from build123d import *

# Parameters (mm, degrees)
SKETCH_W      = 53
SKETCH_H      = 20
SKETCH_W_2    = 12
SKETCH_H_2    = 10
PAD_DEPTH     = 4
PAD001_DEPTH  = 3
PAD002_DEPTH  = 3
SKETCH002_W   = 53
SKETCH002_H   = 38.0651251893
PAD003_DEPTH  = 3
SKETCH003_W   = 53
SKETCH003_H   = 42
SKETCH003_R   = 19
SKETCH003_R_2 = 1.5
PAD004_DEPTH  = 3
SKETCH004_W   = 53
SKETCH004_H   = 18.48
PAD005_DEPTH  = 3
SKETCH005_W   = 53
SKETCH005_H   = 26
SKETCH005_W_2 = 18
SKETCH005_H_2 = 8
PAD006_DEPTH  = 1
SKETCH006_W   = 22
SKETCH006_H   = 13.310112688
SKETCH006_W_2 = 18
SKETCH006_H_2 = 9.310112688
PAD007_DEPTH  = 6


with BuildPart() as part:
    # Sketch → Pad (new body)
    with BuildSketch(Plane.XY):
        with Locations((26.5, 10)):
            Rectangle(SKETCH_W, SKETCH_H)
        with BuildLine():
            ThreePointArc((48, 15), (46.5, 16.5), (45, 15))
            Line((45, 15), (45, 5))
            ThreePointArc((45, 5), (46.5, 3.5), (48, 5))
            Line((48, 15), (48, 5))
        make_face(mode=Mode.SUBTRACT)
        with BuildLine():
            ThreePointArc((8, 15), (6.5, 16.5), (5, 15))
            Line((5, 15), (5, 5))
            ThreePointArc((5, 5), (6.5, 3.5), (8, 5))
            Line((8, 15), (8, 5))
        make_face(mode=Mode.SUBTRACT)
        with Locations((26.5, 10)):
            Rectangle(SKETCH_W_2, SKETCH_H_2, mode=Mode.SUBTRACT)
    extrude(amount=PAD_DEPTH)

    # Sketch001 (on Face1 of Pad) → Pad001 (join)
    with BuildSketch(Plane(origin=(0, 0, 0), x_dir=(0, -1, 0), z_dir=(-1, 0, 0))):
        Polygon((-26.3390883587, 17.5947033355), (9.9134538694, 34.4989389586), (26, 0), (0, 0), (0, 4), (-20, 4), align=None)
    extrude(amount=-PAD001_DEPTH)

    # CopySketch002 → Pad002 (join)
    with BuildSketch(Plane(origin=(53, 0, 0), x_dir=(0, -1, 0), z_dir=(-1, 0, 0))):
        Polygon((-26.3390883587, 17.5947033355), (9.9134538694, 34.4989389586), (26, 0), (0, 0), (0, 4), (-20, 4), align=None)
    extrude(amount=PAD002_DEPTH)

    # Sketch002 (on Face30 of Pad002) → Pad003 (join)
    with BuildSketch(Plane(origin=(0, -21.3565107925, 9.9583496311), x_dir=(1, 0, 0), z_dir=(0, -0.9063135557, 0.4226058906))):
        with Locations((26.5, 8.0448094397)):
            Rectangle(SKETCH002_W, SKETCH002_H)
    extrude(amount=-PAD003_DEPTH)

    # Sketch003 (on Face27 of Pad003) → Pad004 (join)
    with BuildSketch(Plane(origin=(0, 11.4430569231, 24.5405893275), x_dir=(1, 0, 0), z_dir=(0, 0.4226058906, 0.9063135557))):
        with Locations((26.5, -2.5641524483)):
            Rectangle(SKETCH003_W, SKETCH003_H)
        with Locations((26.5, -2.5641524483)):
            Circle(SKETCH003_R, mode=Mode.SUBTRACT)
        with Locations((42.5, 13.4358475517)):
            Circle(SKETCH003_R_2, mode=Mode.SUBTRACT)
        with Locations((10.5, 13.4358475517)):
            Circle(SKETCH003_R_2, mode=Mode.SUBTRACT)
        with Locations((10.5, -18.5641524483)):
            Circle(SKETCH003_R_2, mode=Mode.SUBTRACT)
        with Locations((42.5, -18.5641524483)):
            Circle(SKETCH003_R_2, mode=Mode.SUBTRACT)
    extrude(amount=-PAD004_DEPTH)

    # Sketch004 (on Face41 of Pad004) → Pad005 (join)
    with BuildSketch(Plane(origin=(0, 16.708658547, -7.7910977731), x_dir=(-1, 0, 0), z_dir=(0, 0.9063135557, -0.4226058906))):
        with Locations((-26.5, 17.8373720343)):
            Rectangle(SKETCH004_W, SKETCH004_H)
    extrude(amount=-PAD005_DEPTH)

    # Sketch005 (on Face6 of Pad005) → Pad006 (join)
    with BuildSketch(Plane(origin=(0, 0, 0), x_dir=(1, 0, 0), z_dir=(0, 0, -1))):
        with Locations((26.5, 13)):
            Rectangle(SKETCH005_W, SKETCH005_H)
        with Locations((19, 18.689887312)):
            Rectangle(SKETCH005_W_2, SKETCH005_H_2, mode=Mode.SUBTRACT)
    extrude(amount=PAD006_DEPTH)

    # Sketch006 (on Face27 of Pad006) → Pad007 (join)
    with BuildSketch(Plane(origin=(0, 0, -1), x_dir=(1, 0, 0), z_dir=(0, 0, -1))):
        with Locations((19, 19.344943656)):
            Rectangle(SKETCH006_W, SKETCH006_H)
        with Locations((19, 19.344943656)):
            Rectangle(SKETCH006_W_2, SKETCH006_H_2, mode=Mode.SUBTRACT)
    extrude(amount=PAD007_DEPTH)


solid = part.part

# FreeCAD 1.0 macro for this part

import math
import FreeCAD as App
import Part
import Sketcher
from FreeCAD import Vector
Q = App.Units.Quantity

doc = App.newDocument("Part")
body = doc.addObject("PartDesign::Body", "Body")

sketch1 = doc.addObject("Sketcher::SketchObject", "Sketch")
body.addObject(sketch1)
sketch1.AttachmentSupport = (doc.XY_Plane, [""])
sketch1.MapMode = "FlatFace"
sketch1.addGeometry(Part.LineSegment(Vector(0, 20, 0), Vector(0, 0, 0)), False)
sketch1.addGeometry(Part.LineSegment(Vector(0, 0, 0), Vector(53, 0, 0)), False)
sketch1.addGeometry(Part.LineSegment(Vector(53, 0, 0), Vector(53, 20, 0)), False)
sketch1.addGeometry(Part.LineSegment(Vector(53, 20, 0), Vector(0, 20, 0)), False)
sketch1.addGeometry(Part.ArcOfCircle(Part.Circle(Vector(6.5, 15, 0), Vector(0, 0, 1), 1.5), math.radians(0), math.radians(180)), False)
sketch1.addGeometry(Part.LineSegment(Vector(8, 15, 0), Vector(8, 5, 0)), False)
sketch1.addGeometry(Part.ArcOfCircle(Part.Circle(Vector(6.5, 5, 0), Vector(0, 0, 1), 1.5), math.radians(180), math.radians(360)), False)
sketch1.addGeometry(Part.LineSegment(Vector(5, 5, 0), Vector(5, 15, 0)), False)
sketch1.addGeometry(Part.LineSegment(Vector(32.5, 5, 0), Vector(20.5, 5, 0)), False)
sketch1.addGeometry(Part.LineSegment(Vector(20.5, 5, 0), Vector(20.5, 15, 0)), False)
sketch1.addGeometry(Part.LineSegment(Vector(20.5, 15, 0), Vector(32.5, 15, 0)), False)
sketch1.addGeometry(Part.LineSegment(Vector(32.5, 15, 0), Vector(32.5, 5, 0)), False)
sketch1.addGeometry(Part.ArcOfCircle(Part.Circle(Vector(46.5, 15, 0), Vector(0, 0, 1), 1.5), math.radians(0), math.radians(180)), False)
sketch1.addGeometry(Part.LineSegment(Vector(48, 15, 0), Vector(48, 5, 0)), False)
sketch1.addGeometry(Part.ArcOfCircle(Part.Circle(Vector(46.5, 5, 0), Vector(0, 0, 1), 1.5), math.radians(180), math.radians(360)), False)
sketch1.addGeometry(Part.LineSegment(Vector(45, 5, 0), Vector(45, 15, 0)), False)
sketch1.addConstraint(Sketcher.Constraint("Coincident", 0, 2, 1, 1))
sketch1.addConstraint(Sketcher.Constraint("Coincident", 1, 2, 2, 1))
sketch1.addConstraint(Sketcher.Constraint("Coincident", 2, 2, 3, 1))
sketch1.addConstraint(Sketcher.Constraint("Coincident", 3, 2, 0, 1))
sketch1.addConstraint(Sketcher.Constraint("Tangent", 4, 1, 5, 1))
sketch1.addConstraint(Sketcher.Constraint("Tangent", 5, 2, 6, 2))
sketch1.addConstraint(Sketcher.Constraint("Tangent", 6, 1, 7, 1))
sketch1.addConstraint(Sketcher.Constraint("Tangent", 7, 2, 4, 2))
sketch1.addConstraint(Sketcher.Constraint("Coincident", 8, 2, 9, 1))
sketch1.addConstraint(Sketcher.Constraint("Coincident", 9, 2, 10, 1))
sketch1.addConstraint(Sketcher.Constraint("Coincident", 10, 2, 11, 1))
sketch1.addConstraint(Sketcher.Constraint("Coincident", 11, 2, 8, 1))
sketch1.addConstraint(Sketcher.Constraint("Tangent", 12, 1, 13, 1))
sketch1.addConstraint(Sketcher.Constraint("Tangent", 13, 2, 14, 2))
sketch1.addConstraint(Sketcher.Constraint("Tangent", 14, 1, 15, 1))
sketch1.addConstraint(Sketcher.Constraint("Tangent", 15, 2, 12, 2))
sketch1.addConstraint(Sketcher.Constraint("Vertical", 0))
sketch1.addConstraint(Sketcher.Constraint("Horizontal", 1))
sketch1.addConstraint(Sketcher.Constraint("Vertical", 2))
sketch1.addConstraint(Sketcher.Constraint("Horizontal", 3))
sketch1.addConstraint(Sketcher.Constraint("Vertical", 5))
sketch1.addConstraint(Sketcher.Constraint("Vertical", 7))
sketch1.addConstraint(Sketcher.Constraint("Horizontal", 8))
sketch1.addConstraint(Sketcher.Constraint("Vertical", 9))
sketch1.addConstraint(Sketcher.Constraint("Horizontal", 10))
sketch1.addConstraint(Sketcher.Constraint("Vertical", 11))
sketch1.addConstraint(Sketcher.Constraint("Vertical", 13))
sketch1.addConstraint(Sketcher.Constraint("Vertical", 15))
sketch1.addConstraint(Sketcher.Constraint("Coincident", 0, 2, -1, 1))
sketch1.addConstraint(Sketcher.Constraint("Equal", 6, 12))
sketch1.addConstraint(Sketcher.Constraint("Horizontal", 4, 3, 12, 3))
sketch1.addConstraint(Sketcher.Constraint("Horizontal", 6, 3, 14, 3))
sketch1.addConstraint(Sketcher.Constraint("Horizontal", 6, 1, 8, 2))
sketch1.addConstraint(Sketcher.Constraint("Horizontal", 7, 2, 9, 2))
sketch1.addConstraint(Sketcher.Constraint("Radius", 4, Q("1.5 mm")))
sketch1.addConstraint(Sketcher.Constraint("DistanceX", 1, 1, 1, 2, Q("53 mm")))
sketch1.addConstraint(Sketcher.Constraint("DistanceX", 8, 2, 8, 1, Q("12 mm")))
sketch1.addConstraint(Sketcher.Constraint("DistanceY", 0, 2, 0, 1, Q("20 mm")))
sketch1.addConstraint(Sketcher.Constraint("DistanceY", 5, 2, 5, 1, Q("10 mm")))
sketch1.addConstraint(Sketcher.Constraint("DistanceY", -1, 1, 4, 3, Q("15 mm")))
sketch1.addConstraint(Sketcher.Constraint("DistanceX", -1, 1, 4, 1, Q("8 mm")))
sketch1.addConstraint(Sketcher.Constraint("DistanceX", -1, 1, 12, 1, Q("48 mm")))
sketch1.addConstraint(Sketcher.Constraint("DistanceX", 6, 3, 8, 2, Q("14 mm")))
pad1 = doc.addObject("PartDesign::Pad", "Pad")
body.addObject(pad1)
pad1.Profile = sketch1
pad1.Length = 4

sketch2 = doc.addObject("Sketcher::SketchObject", "Sketch001")
body.addObject(sketch2)
sketch2.AttachmentSupport = (doc.YZ_Plane, [""])
sketch2.MapMode = "FlatFace"
sketch2.addGeometry(Part.LineSegment(Vector(-9.9, 34.5, 0), Vector(26.3, 17.6, 0)), False)
sketch2.addGeometry(Part.LineSegment(Vector(26.3, 17.6, 0), Vector(20, 4, 0)), False)
sketch2.addGeometry(Part.LineSegment(Vector(20, 4, 0), Vector(0, 4, 0)), False)
sketch2.addGeometry(Part.LineSegment(Vector(0, 4, 0), Vector(0, 0, 0)), False)
sketch2.addGeometry(Part.LineSegment(Vector(0, 0, 0), Vector(-26, 0, 0)), False)
sketch2.addGeometry(Part.LineSegment(Vector(-26, 0, 0), Vector(-9.9, 34.5, 0)), False)
sketch2.addConstraint(Sketcher.Constraint("Coincident", 0, 2, 1, 1))
sketch2.addConstraint(Sketcher.Constraint("Coincident", 1, 2, 2, 1))
sketch2.addConstraint(Sketcher.Constraint("Coincident", 2, 2, 3, 1))
sketch2.addConstraint(Sketcher.Constraint("Coincident", 3, 2, 4, 1))
sketch2.addConstraint(Sketcher.Constraint("Coincident", 4, 2, 5, 1))
sketch2.addConstraint(Sketcher.Constraint("Coincident", 5, 2, 0, 1))
sketch2.addConstraint(Sketcher.Constraint("Horizontal", 2))
sketch2.addConstraint(Sketcher.Constraint("Vertical", 3))
sketch2.addConstraint(Sketcher.Constraint("Horizontal", 4))
sketch2.addConstraint(Sketcher.Constraint("Coincident", 3, 2, -1, 1))
sketch2.addConstraint(Sketcher.Constraint("Perpendicular", 0, 1))
sketch2.addConstraint(Sketcher.Constraint("Parallel", 1, 5))
sketch2.addConstraint(Sketcher.Constraint("DistanceX", 2, 2, 2, 1, Q("20 mm")))
sketch2.addConstraint(Sketcher.Constraint("DistanceX", 4, 2, 4, 1, Q("26 mm")))
sketch2.addConstraint(Sketcher.Constraint("DistanceY", 3, 2, 3, 1, Q("4 mm")))
sketch2.addConstraint(Sketcher.Constraint("Distance", 0, Q("40 mm")))
sketch2.addConstraint(Sketcher.Constraint("Distance", 1, Q("15 mm")))
pad2 = doc.addObject("PartDesign::Pad", "Pad001")
body.addObject(pad2)
pad2.Profile = sketch2
pad2.Length = 3

sketch3 = doc.addObject("Sketcher::SketchObject", "Sketch002")
body.addObject(sketch3)
sketch3.AttachmentSupport = (doc.YZ_Plane, [""])
sketch3.MapMode = "FlatFace"
sketch3.AttachmentOffset = App.Placement(Vector(0, 0, 53), App.Rotation())
sketch3.addGeometry(Part.LineSegment(Vector(-9.9, 34.5, 0), Vector(26.3, 17.6, 0)), False)
sketch3.addGeometry(Part.LineSegment(Vector(26.3, 17.6, 0), Vector(20, 4, 0)), False)
sketch3.addGeometry(Part.LineSegment(Vector(20, 4, 0), Vector(0, 4, 0)), False)
sketch3.addGeometry(Part.LineSegment(Vector(0, 4, 0), Vector(0, 0, 0)), False)
sketch3.addGeometry(Part.LineSegment(Vector(0, 0, 0), Vector(-26, 0, 0)), False)
sketch3.addGeometry(Part.LineSegment(Vector(-26, 0, 0), Vector(-9.9, 34.5, 0)), False)
sketch3.addConstraint(Sketcher.Constraint("Coincident", 0, 2, 1, 1))
sketch3.addConstraint(Sketcher.Constraint("Coincident", 1, 2, 2, 1))
sketch3.addConstraint(Sketcher.Constraint("Coincident", 2, 2, 3, 1))
sketch3.addConstraint(Sketcher.Constraint("Coincident", 3, 2, 4, 1))
sketch3.addConstraint(Sketcher.Constraint("Coincident", 4, 2, 5, 1))
sketch3.addConstraint(Sketcher.Constraint("Coincident", 5, 2, 0, 1))
sketch3.addConstraint(Sketcher.Constraint("Horizontal", 2))
sketch3.addConstraint(Sketcher.Constraint("Vertical", 3))
sketch3.addConstraint(Sketcher.Constraint("Horizontal", 4))
sketch3.addConstraint(Sketcher.Constraint("Coincident", 3, 2, -1, 1))
sketch3.addConstraint(Sketcher.Constraint("Perpendicular", 0, 1))
sketch3.addConstraint(Sketcher.Constraint("Parallel", 1, 5))
sketch3.addConstraint(Sketcher.Constraint("DistanceX", 2, 2, 2, 1, Q("20 mm")))
sketch3.addConstraint(Sketcher.Constraint("DistanceX", 4, 2, 4, 1, Q("26 mm")))
sketch3.addConstraint(Sketcher.Constraint("DistanceY", 3, 2, 3, 1, Q("4 mm")))
sketch3.addConstraint(Sketcher.Constraint("Distance", 0, Q("40 mm")))
sketch3.addConstraint(Sketcher.Constraint("Distance", 1, Q("15 mm")))
pad3 = doc.addObject("PartDesign::Pad", "Pad002")
body.addObject(pad3)
pad3.Profile = sketch3
pad3.Length = 3
pad3.Reversed = True

sketch4 = doc.addObject("Sketcher::SketchObject", "Sketch003")
body.addObject(sketch4)
sketch4.Placement = App.Placement(Vector(0, -21.356511, 9.95835), App.Rotation(Vector(1, 0, 0), Vector(0, 0.422605891, 0.906313556), Vector(0, -0.906313556, 0.422605891), "ZXY"))
sketch4.addGeometry(Part.LineSegment(Vector(0, 27, 0), Vector(0, -11, 0)), False)
sketch4.addGeometry(Part.LineSegment(Vector(0, -11, 0), Vector(53, -11, 0)), False)
sketch4.addGeometry(Part.LineSegment(Vector(53, -11, 0), Vector(53, 27, 0)), False)
sketch4.addGeometry(Part.LineSegment(Vector(53, 27, 0), Vector(0, 27, 0)), False)
sketch4.addConstraint(Sketcher.Constraint("Coincident", 0, 2, 1, 1))
sketch4.addConstraint(Sketcher.Constraint("Coincident", 1, 2, 2, 1))
sketch4.addConstraint(Sketcher.Constraint("Coincident", 2, 2, 3, 1))
sketch4.addConstraint(Sketcher.Constraint("Coincident", 3, 2, 0, 1))
sketch4.addConstraint(Sketcher.Constraint("Vertical", 0))
sketch4.addConstraint(Sketcher.Constraint("Horizontal", 1))
sketch4.addConstraint(Sketcher.Constraint("Vertical", 2))
sketch4.addConstraint(Sketcher.Constraint("Horizontal", 3))
sketch4.addConstraint(Sketcher.Constraint("PointOnObject", 0, 2, -2))
sketch4.addConstraint(Sketcher.Constraint("DistanceX", 1, 1, 1, 2, Q("53 mm")))
sketch4.addConstraint(Sketcher.Constraint("DistanceY", 0, 2, 0, 1, Q("38.065125 mm")))
sketch4.addConstraint(Sketcher.Constraint("DistanceY", 0, 2, -1, 1, Q("10.987753 mm")))
pad4 = doc.addObject("PartDesign::Pad", "Pad003")
body.addObject(pad4)
pad4.Profile = sketch4
pad4.Length = 3
pad4.Reversed = True

sketch5 = doc.addObject("Sketcher::SketchObject", "Sketch004")
body.addObject(sketch5)
sketch5.Placement = App.Placement(Vector(0, 11.443057, 24.540589), App.Rotation(Vector(1, 0, 0), Vector(0, 0.906313556, -0.422605891), Vector(0, 0.422605891, 0.906313556), "ZXY"))
sketch5.addGeometry(Part.LineSegment(Vector(0, 18.4, 0), Vector(0, -23.6, 0)), False)
sketch5.addGeometry(Part.LineSegment(Vector(0, -23.6, 0), Vector(53, -23.6, 0)), False)
sketch5.addGeometry(Part.LineSegment(Vector(53, -23.6, 0), Vector(53, 18.4, 0)), False)
sketch5.addGeometry(Part.LineSegment(Vector(53, 18.4, 0), Vector(0, 18.4, 0)), False)
sketch5.addGeometry(Part.Circle(Vector(10.5, -18.6, 0), Vector(0, 0, 1), 1.5), False)
sketch5.addGeometry(Part.Circle(Vector(42.5, -18.6, 0), Vector(0, 0, 1), 1.5), False)
sketch5.addGeometry(Part.Circle(Vector(10.5, 13.4, 0), Vector(0, 0, 1), 1.5), False)
sketch5.addGeometry(Part.Circle(Vector(26.5, -2.6, 0), Vector(0, 0, 1), 19), False)
sketch5.addGeometry(Part.Circle(Vector(42.5, 13.4, 0), Vector(0, 0, 1), 1.5), False)
sketch5.addConstraint(Sketcher.Constraint("Coincident", 0, 2, 1, 1))
sketch5.addConstraint(Sketcher.Constraint("Coincident", 1, 2, 2, 1))
sketch5.addConstraint(Sketcher.Constraint("Coincident", 2, 2, 3, 1))
sketch5.addConstraint(Sketcher.Constraint("Coincident", 3, 2, 0, 1))
sketch5.addConstraint(Sketcher.Constraint("Vertical", 0))
sketch5.addConstraint(Sketcher.Constraint("Horizontal", 1))
sketch5.addConstraint(Sketcher.Constraint("Vertical", 2))
sketch5.addConstraint(Sketcher.Constraint("Horizontal", 3))
sketch5.addConstraint(Sketcher.Constraint("Equal", 4, 5))
sketch5.addConstraint(Sketcher.Constraint("Equal", 5, 6))
sketch5.addConstraint(Sketcher.Constraint("Equal", 6, 8))
sketch5.addConstraint(Sketcher.Constraint("PointOnObject", 0, 2, -2))
sketch5.addConstraint(Sketcher.Constraint("Horizontal", 4, 3, 5, 3))
sketch5.addConstraint(Sketcher.Constraint("Horizontal", 6, 3, 8, 3))
sketch5.addConstraint(Sketcher.Constraint("Vertical", 4, 3, 6, 3))
sketch5.addConstraint(Sketcher.Constraint("Vertical", 5, 3, 8, 3))
sketch5.addConstraint(Sketcher.Constraint("Diameter", 4, Q("3 mm")))
sketch5.addConstraint(Sketcher.Constraint("Diameter", 7, Q("38 mm")))
sketch5.addConstraint(Sketcher.Constraint("DistanceX", 1, 1, 1, 2, Q("53 mm")))
sketch5.addConstraint(Sketcher.Constraint("DistanceY", 0, 2, 0, 1, Q("42 mm")))
sketch5.addConstraint(Sketcher.Constraint("DistanceX", 4, 3, 5, 3, Q("32 mm")))
sketch5.addConstraint(Sketcher.Constraint("DistanceY", 4, 3, 6, 3, Q("32 mm")))
sketch5.addConstraint(Sketcher.Constraint("DistanceX", 6, 3, 7, 3, Q("16 mm")))
sketch5.addConstraint(Sketcher.Constraint("DistanceY", 7, 3, 6, 3, Q("16 mm")))
sketch5.addConstraint(Sketcher.Constraint("DistanceY", 0, 2, 4, 3, Q("5 mm")))
sketch5.addConstraint(Sketcher.Constraint("DistanceX", -1, 1, 4, 3, Q("10.5 mm")))
sketch5.addConstraint(Sketcher.Constraint("DistanceY", 4, 3, -1, 1, Q("18.564152 mm")))
pad5 = doc.addObject("PartDesign::Pad", "Pad004")
body.addObject(pad5)
pad5.Profile = sketch5
pad5.Length = 3
pad5.Reversed = True

sketch6 = doc.addObject("Sketcher::SketchObject", "Sketch005")
body.addObject(sketch6)
sketch6.Placement = App.Placement(Vector(0, 16.708659, -7.791098), App.Rotation(Vector(-1, 0, 0), Vector(0, 0.422605891, 0.906313556), Vector(0, 0.906313556, -0.422605891), "ZXY"))
sketch6.addGeometry(Part.LineSegment(Vector(-53, 27, 0), Vector(-53, 9, 0)), False)
sketch6.addGeometry(Part.LineSegment(Vector(-53, 9, 0), Vector(0, 9, 0)), False)
sketch6.addGeometry(Part.LineSegment(Vector(0, 9, 0), Vector(0, 27, 0)), False)
sketch6.addGeometry(Part.LineSegment(Vector(0, 27, 0), Vector(-53, 27, 0)), False)
sketch6.addConstraint(Sketcher.Constraint("Coincident", 0, 2, 1, 1))
sketch6.addConstraint(Sketcher.Constraint("Coincident", 1, 2, 2, 1))
sketch6.addConstraint(Sketcher.Constraint("Coincident", 2, 2, 3, 1))
sketch6.addConstraint(Sketcher.Constraint("Coincident", 3, 2, 0, 1))
sketch6.addConstraint(Sketcher.Constraint("Vertical", 0))
sketch6.addConstraint(Sketcher.Constraint("Horizontal", 1))
sketch6.addConstraint(Sketcher.Constraint("Vertical", 2))
sketch6.addConstraint(Sketcher.Constraint("Horizontal", 3))
sketch6.addConstraint(Sketcher.Constraint("PointOnObject", 1, 2, -2))
sketch6.addConstraint(Sketcher.Constraint("DistanceX", 1, 1, 1, 2, Q("53 mm")))
sketch6.addConstraint(Sketcher.Constraint("DistanceY", 0, 2, 0, 1, Q("18.48 mm")))
sketch6.addConstraint(Sketcher.Constraint("DistanceY", -1, 1, 0, 2, Q("8.597372 mm")))
pad6 = doc.addObject("PartDesign::Pad", "Pad005")
body.addObject(pad6)
pad6.Profile = sketch6
pad6.Length = 3
pad6.Reversed = True

sketch7 = doc.addObject("Sketcher::SketchObject", "Sketch006")
body.addObject(sketch7)
sketch7.AttachmentSupport = (doc.XY_Plane, [""])
sketch7.MapMode = "FlatFace"
sketch7.addGeometry(Part.LineSegment(Vector(0, -26, 0), Vector(0, 0, 0)), False)
sketch7.addGeometry(Part.LineSegment(Vector(0, 0, 0), Vector(53, 0, 0)), False)
sketch7.addGeometry(Part.LineSegment(Vector(53, 0, 0), Vector(53, -26, 0)), False)
sketch7.addGeometry(Part.LineSegment(Vector(53, -26, 0), Vector(0, -26, 0)), False)
sketch7.addGeometry(Part.LineSegment(Vector(28, -15, 0), Vector(10, -15, 0)), False)
sketch7.addGeometry(Part.LineSegment(Vector(10, -15, 0), Vector(10, -23, 0)), False)
sketch7.addGeometry(Part.LineSegment(Vector(10, -23, 0), Vector(28, -23, 0)), False)
sketch7.addGeometry(Part.LineSegment(Vector(28, -23, 0), Vector(28, -15, 0)), False)
sketch7.addConstraint(Sketcher.Constraint("Coincident", 0, 2, 1, 1))
sketch7.addConstraint(Sketcher.Constraint("Coincident", 1, 2, 2, 1))
sketch7.addConstraint(Sketcher.Constraint("Coincident", 2, 2, 3, 1))
sketch7.addConstraint(Sketcher.Constraint("Coincident", 3, 2, 0, 1))
sketch7.addConstraint(Sketcher.Constraint("Coincident", 4, 2, 5, 1))
sketch7.addConstraint(Sketcher.Constraint("Coincident", 5, 2, 6, 1))
sketch7.addConstraint(Sketcher.Constraint("Coincident", 6, 2, 7, 1))
sketch7.addConstraint(Sketcher.Constraint("Coincident", 7, 2, 4, 1))
sketch7.addConstraint(Sketcher.Constraint("Vertical", 0))
sketch7.addConstraint(Sketcher.Constraint("Horizontal", 1))
sketch7.addConstraint(Sketcher.Constraint("Vertical", 2))
sketch7.addConstraint(Sketcher.Constraint("Horizontal", 3))
sketch7.addConstraint(Sketcher.Constraint("Horizontal", 4))
sketch7.addConstraint(Sketcher.Constraint("Vertical", 5))
sketch7.addConstraint(Sketcher.Constraint("Horizontal", 6))
sketch7.addConstraint(Sketcher.Constraint("Vertical", 7))
sketch7.addConstraint(Sketcher.Constraint("Coincident", 0, 2, -1, 1))
sketch7.addConstraint(Sketcher.Constraint("DistanceX", 1, 1, 1, 2, Q("53 mm")))
sketch7.addConstraint(Sketcher.Constraint("DistanceX", 4, 2, 4, 1, Q("18 mm")))
sketch7.addConstraint(Sketcher.Constraint("DistanceY", 0, 1, 0, 2, Q("26 mm")))
sketch7.addConstraint(Sketcher.Constraint("DistanceY", 5, 2, 5, 1, Q("8 mm")))
sketch7.addConstraint(Sketcher.Constraint("DistanceX", -1, 1, 4, 2, Q("10 mm")))
sketch7.addConstraint(Sketcher.Constraint("DistanceY", 4, 2, -1, 1, Q("14.689887 mm")))
pad7 = doc.addObject("PartDesign::Pad", "Pad006")
body.addObject(pad7)
pad7.Profile = sketch7
pad7.Length = 1
pad7.Reversed = True

sketch8 = doc.addObject("Sketcher::SketchObject", "Sketch007")
body.addObject(sketch8)
sketch8.AttachmentSupport = (doc.XY_Plane, [""])
sketch8.MapMode = "FlatFace"
sketch8.AttachmentOffset = App.Placement(Vector(0, 0, -1), App.Rotation())
sketch8.addGeometry(Part.LineSegment(Vector(8, -26, 0), Vector(8, -13, 0)), False)
sketch8.addGeometry(Part.LineSegment(Vector(8, -13, 0), Vector(30, -13, 0)), False)
sketch8.addGeometry(Part.LineSegment(Vector(30, -13, 0), Vector(30, -26, 0)), False)
sketch8.addGeometry(Part.LineSegment(Vector(30, -26, 0), Vector(8, -26, 0)), False)
sketch8.addGeometry(Part.LineSegment(Vector(28, -15, 0), Vector(10, -15, 0)), False)
sketch8.addGeometry(Part.LineSegment(Vector(10, -15, 0), Vector(10, -24, 0)), False)
sketch8.addGeometry(Part.LineSegment(Vector(10, -24, 0), Vector(28, -24, 0)), False)
sketch8.addGeometry(Part.LineSegment(Vector(28, -24, 0), Vector(28, -15, 0)), False)
sketch8.addConstraint(Sketcher.Constraint("Coincident", 0, 2, 1, 1))
sketch8.addConstraint(Sketcher.Constraint("Coincident", 1, 2, 2, 1))
sketch8.addConstraint(Sketcher.Constraint("Coincident", 2, 2, 3, 1))
sketch8.addConstraint(Sketcher.Constraint("Coincident", 3, 2, 0, 1))
sketch8.addConstraint(Sketcher.Constraint("Coincident", 4, 2, 5, 1))
sketch8.addConstraint(Sketcher.Constraint("Coincident", 5, 2, 6, 1))
sketch8.addConstraint(Sketcher.Constraint("Coincident", 6, 2, 7, 1))
sketch8.addConstraint(Sketcher.Constraint("Coincident", 7, 2, 4, 1))
sketch8.addConstraint(Sketcher.Constraint("Vertical", 0))
sketch8.addConstraint(Sketcher.Constraint("Horizontal", 1))
sketch8.addConstraint(Sketcher.Constraint("Vertical", 2))
sketch8.addConstraint(Sketcher.Constraint("Horizontal", 3))
sketch8.addConstraint(Sketcher.Constraint("Horizontal", 4))
sketch8.addConstraint(Sketcher.Constraint("Vertical", 5))
sketch8.addConstraint(Sketcher.Constraint("Horizontal", 6))
sketch8.addConstraint(Sketcher.Constraint("Vertical", 7))
sketch8.addConstraint(Sketcher.Constraint("DistanceX", 1, 1, 1, 2, Q("22 mm")))
sketch8.addConstraint(Sketcher.Constraint("DistanceX", 4, 2, 4, 1, Q("18 mm")))
sketch8.addConstraint(Sketcher.Constraint("DistanceX", -1, 1, 0, 2, Q("8 mm")))
sketch8.addConstraint(Sketcher.Constraint("DistanceY", 2, 2, -1, 1, Q("26 mm")))
sketch8.addConstraint(Sketcher.Constraint("DistanceX", -1, 1, 4, 2, Q("10 mm")))
sketch8.addConstraint(Sketcher.Constraint("DistanceY", 5, 2, -1, 1, Q("24 mm")))
sketch8.addConstraint(Sketcher.Constraint("DistanceY", 4, 2, 0, 2, Q("2 mm")))
sketch8.addConstraint(Sketcher.Constraint("DistanceY", 0, 1, 0, 2, Q("13.310113 mm")))
pad8 = doc.addObject("PartDesign::Pad", "Pad007")
body.addObject(pad8)
pad8.Profile = sketch8
pad8.Length = 6
pad8.Reversed = True

doc.recompute()
